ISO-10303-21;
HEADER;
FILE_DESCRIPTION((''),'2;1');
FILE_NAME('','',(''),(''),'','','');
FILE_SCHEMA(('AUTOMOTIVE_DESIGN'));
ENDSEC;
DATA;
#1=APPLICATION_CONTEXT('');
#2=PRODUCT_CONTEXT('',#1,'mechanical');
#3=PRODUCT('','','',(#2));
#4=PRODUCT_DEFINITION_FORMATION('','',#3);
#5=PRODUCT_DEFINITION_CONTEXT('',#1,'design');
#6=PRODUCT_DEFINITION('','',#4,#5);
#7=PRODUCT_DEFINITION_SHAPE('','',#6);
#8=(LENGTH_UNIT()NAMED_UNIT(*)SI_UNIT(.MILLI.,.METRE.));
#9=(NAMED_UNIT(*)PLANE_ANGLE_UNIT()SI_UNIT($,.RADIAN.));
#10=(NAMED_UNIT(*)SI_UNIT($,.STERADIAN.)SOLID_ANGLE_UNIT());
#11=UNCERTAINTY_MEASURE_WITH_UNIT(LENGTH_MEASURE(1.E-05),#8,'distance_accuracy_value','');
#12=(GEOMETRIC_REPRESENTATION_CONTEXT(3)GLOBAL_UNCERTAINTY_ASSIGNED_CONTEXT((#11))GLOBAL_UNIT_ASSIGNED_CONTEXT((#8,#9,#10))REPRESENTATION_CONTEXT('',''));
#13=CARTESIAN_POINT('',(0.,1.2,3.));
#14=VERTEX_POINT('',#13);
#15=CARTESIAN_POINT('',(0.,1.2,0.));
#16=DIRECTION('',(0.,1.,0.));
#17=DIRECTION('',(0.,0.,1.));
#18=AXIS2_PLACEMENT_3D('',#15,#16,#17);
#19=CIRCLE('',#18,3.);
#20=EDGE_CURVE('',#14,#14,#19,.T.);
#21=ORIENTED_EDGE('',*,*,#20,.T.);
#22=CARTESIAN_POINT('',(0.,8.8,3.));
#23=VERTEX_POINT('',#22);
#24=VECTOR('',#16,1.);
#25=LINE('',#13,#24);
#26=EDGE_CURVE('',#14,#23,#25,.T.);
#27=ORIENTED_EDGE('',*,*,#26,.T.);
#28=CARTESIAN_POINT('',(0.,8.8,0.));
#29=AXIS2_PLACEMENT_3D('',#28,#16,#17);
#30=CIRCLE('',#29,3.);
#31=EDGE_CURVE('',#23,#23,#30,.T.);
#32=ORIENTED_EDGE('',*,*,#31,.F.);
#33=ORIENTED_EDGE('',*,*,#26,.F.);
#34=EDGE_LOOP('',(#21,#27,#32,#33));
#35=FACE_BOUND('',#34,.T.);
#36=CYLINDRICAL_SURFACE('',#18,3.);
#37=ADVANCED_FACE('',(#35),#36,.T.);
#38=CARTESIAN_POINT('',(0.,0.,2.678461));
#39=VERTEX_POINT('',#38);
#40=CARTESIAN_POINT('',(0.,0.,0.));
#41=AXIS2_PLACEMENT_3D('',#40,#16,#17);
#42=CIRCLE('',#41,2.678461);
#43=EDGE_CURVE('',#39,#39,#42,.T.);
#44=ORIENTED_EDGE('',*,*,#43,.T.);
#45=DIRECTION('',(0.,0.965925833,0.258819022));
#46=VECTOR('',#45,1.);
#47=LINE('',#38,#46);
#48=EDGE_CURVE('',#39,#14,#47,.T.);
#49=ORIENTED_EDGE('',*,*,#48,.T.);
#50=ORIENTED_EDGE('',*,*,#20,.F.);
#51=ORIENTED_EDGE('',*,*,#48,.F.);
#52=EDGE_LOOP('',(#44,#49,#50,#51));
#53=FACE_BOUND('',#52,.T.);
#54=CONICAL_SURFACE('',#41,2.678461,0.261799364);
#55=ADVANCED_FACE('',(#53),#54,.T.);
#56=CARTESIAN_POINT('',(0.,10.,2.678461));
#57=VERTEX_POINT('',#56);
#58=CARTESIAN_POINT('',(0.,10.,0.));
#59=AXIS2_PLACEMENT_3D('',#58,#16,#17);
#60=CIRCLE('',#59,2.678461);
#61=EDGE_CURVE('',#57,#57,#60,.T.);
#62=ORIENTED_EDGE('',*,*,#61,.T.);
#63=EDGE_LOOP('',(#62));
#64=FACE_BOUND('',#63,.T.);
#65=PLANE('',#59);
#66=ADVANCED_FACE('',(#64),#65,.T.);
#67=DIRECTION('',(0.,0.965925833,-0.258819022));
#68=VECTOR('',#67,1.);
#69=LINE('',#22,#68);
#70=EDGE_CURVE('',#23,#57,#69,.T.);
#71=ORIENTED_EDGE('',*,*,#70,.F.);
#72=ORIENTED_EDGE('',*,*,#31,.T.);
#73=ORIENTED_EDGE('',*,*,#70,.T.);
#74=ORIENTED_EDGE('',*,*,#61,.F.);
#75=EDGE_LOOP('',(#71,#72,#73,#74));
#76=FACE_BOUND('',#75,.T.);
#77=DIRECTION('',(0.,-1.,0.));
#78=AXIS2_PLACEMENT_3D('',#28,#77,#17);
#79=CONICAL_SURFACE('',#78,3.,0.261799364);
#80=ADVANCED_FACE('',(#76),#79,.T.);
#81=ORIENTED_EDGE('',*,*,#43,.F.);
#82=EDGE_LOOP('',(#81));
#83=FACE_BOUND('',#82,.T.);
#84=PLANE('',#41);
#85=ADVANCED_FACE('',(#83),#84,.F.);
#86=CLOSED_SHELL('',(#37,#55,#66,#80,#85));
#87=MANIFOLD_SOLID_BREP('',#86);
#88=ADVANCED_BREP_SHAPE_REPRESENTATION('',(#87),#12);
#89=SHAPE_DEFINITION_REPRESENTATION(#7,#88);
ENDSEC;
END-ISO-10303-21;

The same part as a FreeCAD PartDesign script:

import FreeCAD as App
import Part
import Sketcher

V = App.Vector
Q = App.Units.Quantity

doc = App.newDocument("Part")
body = doc.addObject("PartDesign::Body", "Body")

# Sketch on YZ plane
sketch1 = body.newObject("Sketcher::SketchObject", "Sketch")
sketch1.AttachmentSupport = (doc.getObject("YZ_Plane"), [""])
sketch1.MapMode = "FlatFace"
sketch1.addGeometry(Part.LineSegment(V(0, 2.7, 0), V(0, 0, 0)), False)
sketch1.addGeometry(Part.LineSegment(V(0, 0, 0), V(10, 0, 0)), False)
sketch1.addGeometry(Part.LineSegment(V(10, 0, 0), V(10, 2.7, 0)), False)
sketch1.addGeometry(Part.LineSegment(V(10, 2.7, 0), V(8.8, 3, 0)), False)
sketch1.addGeometry(Part.LineSegment(V(8.8, 3, 0), V(1.2, 3, 0)), False)
sketch1.addGeometry(Part.LineSegment(V(1.2, 3, 0), V(0, 2.7, 0)), False)
sketch1.addConstraint(Sketcher.Constraint("Coincident", 0, 2, 1, 1))
sketch1.addConstraint(Sketcher.Constraint("Coincident", 1, 2, 2, 1))
sketch1.addConstraint(Sketcher.Constraint("Coincident", 2, 2, 3, 1))
sketch1.addConstraint(Sketcher.Constraint("Coincident", 3, 2, 4, 1))
sketch1.addConstraint(Sketcher.Constraint("Coincident", 4, 2, 5, 1))
sketch1.addConstraint(Sketcher.Constraint("Coincident", 5, 2, 0, 1))
sketch1.addConstraint(Sketcher.Constraint("Vertical", 0))
sketch1.addConstraint(Sketcher.Constraint("Horizontal", 1))
sketch1.addConstraint(Sketcher.Constraint("Vertical", 2))
sketch1.addConstraint(Sketcher.Constraint("Horizontal", 4))
sketch1.addConstraint(Sketcher.Constraint("Coincident", 0, 2, -1, 1))
sketch1.addConstraint(Sketcher.Constraint("Horizontal", 2, 2, 5, 2))
sketch1.addConstraint(Sketcher.Constraint("Equal", 3, 5))
sketch1.addConstraint(Sketcher.Constraint("DistanceX", 1, 1, 1, 2, Q("10 mm")))
sketch1.addConstraint(Sketcher.Constraint("Angle", 3, Q("165.000001 deg")))
sketch1.addConstraint(Sketcher.Constraint("DistanceX", 4, 2, 4, 1, Q("7.6 mm")))
sketch1.addConstraint(Sketcher.Constraint("DistanceY", -1, 1, 3, 2, Q("3 mm")))
revolution = body.newObject("PartDesign::Revolution", "Revolution")
revolution.Profile = sketch1
revolution.ReferenceAxis = (sketch1, ["H_Axis"])
revolution.Angle = 360

doc.recompute()
